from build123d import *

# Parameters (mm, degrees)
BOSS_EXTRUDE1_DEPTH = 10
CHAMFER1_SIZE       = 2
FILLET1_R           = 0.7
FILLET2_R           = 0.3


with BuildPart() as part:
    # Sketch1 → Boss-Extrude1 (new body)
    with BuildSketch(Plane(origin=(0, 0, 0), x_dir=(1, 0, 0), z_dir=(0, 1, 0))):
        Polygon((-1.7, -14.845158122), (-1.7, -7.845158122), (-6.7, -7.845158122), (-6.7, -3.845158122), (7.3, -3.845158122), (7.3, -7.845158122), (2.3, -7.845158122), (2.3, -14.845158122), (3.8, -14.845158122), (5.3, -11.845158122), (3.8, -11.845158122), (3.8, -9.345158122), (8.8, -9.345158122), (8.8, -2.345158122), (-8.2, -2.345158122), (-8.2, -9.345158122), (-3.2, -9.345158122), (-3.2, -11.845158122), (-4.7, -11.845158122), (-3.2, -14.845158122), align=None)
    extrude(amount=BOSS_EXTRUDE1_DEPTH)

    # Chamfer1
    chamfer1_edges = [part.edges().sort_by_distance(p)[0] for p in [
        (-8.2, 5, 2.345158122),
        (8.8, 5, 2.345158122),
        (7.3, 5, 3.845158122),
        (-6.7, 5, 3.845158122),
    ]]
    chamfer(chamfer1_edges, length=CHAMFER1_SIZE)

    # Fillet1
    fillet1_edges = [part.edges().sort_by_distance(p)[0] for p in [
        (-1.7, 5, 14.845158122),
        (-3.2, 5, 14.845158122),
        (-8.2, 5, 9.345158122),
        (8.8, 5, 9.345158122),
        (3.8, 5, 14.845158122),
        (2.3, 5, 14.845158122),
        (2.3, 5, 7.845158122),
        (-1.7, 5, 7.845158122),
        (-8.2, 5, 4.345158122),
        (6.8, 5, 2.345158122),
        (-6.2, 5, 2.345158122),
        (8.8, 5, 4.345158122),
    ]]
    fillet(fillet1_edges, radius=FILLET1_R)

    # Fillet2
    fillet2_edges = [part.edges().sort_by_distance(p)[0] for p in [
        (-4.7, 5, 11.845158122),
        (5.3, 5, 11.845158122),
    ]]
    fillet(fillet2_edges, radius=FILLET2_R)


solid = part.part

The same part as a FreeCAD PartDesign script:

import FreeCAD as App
import Part
import Sketcher
from FreeCAD import Vector
Q = App.Units.Quantity


def edges_at(feature, points):
    """Names of the edges that pass closest to the given points."""
    edges = feature.Shape.Edges
    near = lambda p: min(range(len(edges)), key=lambda i: edges[i].distToShape(Part.Vertex(*p))[0])
    return sorted({f"Edge{near(p) + 1}" for p in points})


def add_polygon(sketch, points):
    """Adds a closed chain of lines whose ends are joined by coincident constraints."""
    first, n = sketch.GeometryCount, len(points)
    for a, b in zip(points, points[1:] + points[:1]):
        sketch.addGeometry(Part.LineSegment(App.Vector(*a, 0), App.Vector(*b, 0)), False)
    for i in range(n):
        sketch.addConstraint(Sketcher.Constraint("Coincident", first + i, 2, first + (i + 1) % n, 1))

doc = App.newDocument("Part")
body = doc.addObject("PartDesign::Body", "Body")

# Sketch on XZ plane
sketch1 = body.newObject("Sketcher::SketchObject", "Sketch")
sketch1.AttachmentSupport = (doc.getObject("XZ_Plane"), [""])
sketch1.MapMode = "FlatFace"
add_polygon(sketch1, [(-1.7, 14.8), (-1.7, 7.8), (-6.7, 7.8), (-6.7, 3.8), (7.3, 3.8), (7.3, 7.8), (2.3, 7.8), (2.3, 14.8), (3.8, 14.8), (5.3, 11.8), (3.8, 11.8), (3.8, 9.3), (8.8, 9.3), (8.8, 2.3), (-8.2, 2.3), (-8.2, 9.3), (-3.2, 9.3), (-3.2, 11.8), (-4.7, 11.8), (-3.2, 14.8)])  # lines 0-19
sketch1.addConstraint(Sketcher.Constraint("Vertical", 0))
sketch1.addConstraint(Sketcher.Constraint("Horizontal", 1))
sketch1.addConstraint(Sketcher.Constraint("Vertical", 2))
sketch1.addConstraint(Sketcher.Constraint("Horizontal", 3))
sketch1.addConstraint(Sketcher.Constraint("Vertical", 4))
sketch1.addConstraint(Sketcher.Constraint("Horizontal", 5))
sketch1.addConstraint(Sketcher.Constraint("Vertical", 6))
sketch1.addConstraint(Sketcher.Constraint("Horizontal", 7))
sketch1.addConstraint(Sketcher.Constraint("Horizontal", 9))
sketch1.addConstraint(Sketcher.Constraint("Vertical", 10))
sketch1.addConstraint(Sketcher.Constraint("Horizontal", 11))
sketch1.addConstraint(Sketcher.Constraint("Vertical", 12))
sketch1.addConstraint(Sketcher.Constraint("Horizontal", 13))
sketch1.addConstraint(Sketcher.Constraint("Vertical", 14))
sketch1.addConstraint(Sketcher.Constraint("Horizontal", 15))
sketch1.addConstraint(Sketcher.Constraint("Vertical", 16))
sketch1.addConstraint(Sketcher.Constraint("Horizontal", 17))
sketch1.addConstraint(Sketcher.Constraint("Horizontal", 19))
sketch1.addConstraint(Sketcher.Constraint("Horizontal", 1, 2, 4, 2))
sketch1.addConstraint(Sketcher.Constraint("Horizontal", 11, 2, 14, 2))
sketch1.addConstraint(Sketcher.Constraint("Horizontal", 9, 2, 16, 2))
sketch1.addConstraint(Sketcher.Constraint("Horizontal", 7, 2, 18, 2))
sketch1.addConstraint(Sketcher.Constraint("Vertical", 7, 2, 9, 2))
sketch1.addConstraint(Sketcher.Constraint("Vertical", 16, 2, 18, 2))
sketch1.addConstraint(Sketcher.Constraint("Equal", 1, 5))
sketch1.addConstraint(Sketcher.Constraint("Equal", 7, 9))
sketch1.addConstraint(Sketcher.Constraint("Equal", 5, 11))
sketch1.addConstraint(Sketcher.Constraint("Equal", 11, 15))
sketch1.addConstraint(Sketcher.Constraint("Equal", 9, 17))
sketch1.addConstraint(Sketcher.Constraint("Equal", 17, 19))
sketch1.addConstraint(Sketcher.Constraint("Equal", 6, 12))
sketch1.addConstraint(Sketcher.Constraint("DistanceX", 1, 2, 1, 1, Q("5 mm")))
sketch1.addConstraint(Sketcher.Constraint("DistanceX", 3, 1, 3, 2, Q("14 mm")))
sketch1.addConstraint(Sketcher.Constraint("DistanceX", 13, 2, 13, 1, Q("17 mm")))
sketch1.addConstraint(Sketcher.Constraint("DistanceY", 0, 2, 0, 1, Q("7 mm")))
sketch1.addConstraint(Sketcher.Constraint("DistanceY", 2, 2, 2, 1, Q("4 mm")))
sketch1.addConstraint(Sketcher.Constraint("DistanceY", 10, 2, 10, 1, Q("2.5 mm")))
sketch1.addConstraint(Sketcher.Constraint("DistanceY", 8, 2, 7, 2, Q("3 mm")))
sketch1.addConstraint(Sketcher.Constraint("DistanceX", 0, 2, -1, 1, Q("1.7 mm")))
sketch1.addConstraint(Sketcher.Constraint("DistanceY", -1, 1, 0, 2, Q("7.845158 mm")))
pad1 = body.newObject("PartDesign::Pad", "Pad")
pad1.Profile = sketch1
pad1.Length = 10
pad1.Reversed = True
doc.recompute()

chamfer = body.newObject("PartDesign::Chamfer", "Chamfer")
chamfer.Base = (pad1, edges_at(pad1, [
    (-8.2, 5, 2.345),
    (8.8, 5, 2.345),
    (7.3, 5, 3.845),
    (-6.7, 5, 3.845),
]))
chamfer.Size = 2
doc.recompute()

fillet = body.newObject("PartDesign::Fillet", "Fillet")
fillet.Base = (chamfer, edges_at(chamfer, [
    (-1.7, 5, 14.845),
    (-3.2, 5, 14.845),
    (-8.2, 5, 9.345),
    (8.8, 5, 9.345),
    (3.8, 5, 14.845),
    (2.3, 5, 14.845),
    (2.3, 5, 7.845),
    (-1.7, 5, 7.845),
    (-8.2, 5, 4.345),
    (6.8, 5, 2.345),
    (-6.2, 5, 2.345),
    (8.8, 5, 4.345),
]))
fillet.Radius = 0.7
doc.recompute()

fillet2 = body.newObject("PartDesign::Fillet", "Fillet001")
fillet2.Base = (fillet, edges_at(fillet, [(-4.7, 5, 11.845), (5.3, 5, 11.845)]))
fillet2.Radius = 0.3

doc.recompute()
